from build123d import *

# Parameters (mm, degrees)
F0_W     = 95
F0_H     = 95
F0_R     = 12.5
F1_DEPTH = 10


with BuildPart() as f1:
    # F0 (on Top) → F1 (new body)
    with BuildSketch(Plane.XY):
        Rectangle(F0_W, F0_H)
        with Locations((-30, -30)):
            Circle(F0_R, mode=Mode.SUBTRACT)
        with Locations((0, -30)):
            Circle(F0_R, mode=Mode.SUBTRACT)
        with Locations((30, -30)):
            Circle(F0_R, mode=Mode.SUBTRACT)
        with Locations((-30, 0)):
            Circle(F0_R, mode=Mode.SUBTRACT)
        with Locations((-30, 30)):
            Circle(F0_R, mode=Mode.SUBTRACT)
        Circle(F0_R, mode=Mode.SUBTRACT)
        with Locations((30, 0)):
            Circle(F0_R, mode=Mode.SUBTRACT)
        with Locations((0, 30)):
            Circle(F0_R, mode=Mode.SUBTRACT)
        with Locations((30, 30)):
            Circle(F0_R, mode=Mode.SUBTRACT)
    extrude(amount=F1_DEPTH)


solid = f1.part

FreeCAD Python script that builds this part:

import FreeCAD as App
import Part
import Sketcher

V = App.Vector

doc = App.newDocument("Part")
params = doc.addObject("Spreadsheet::Sheet", "Params")
for row, (alias, value) in enumerate([
    ("sketch1_diameter", "25 mm"),
    ("sketch1_width", "95 mm"),
    ("pad1_length", "10 mm"),
], start=1):
    params.set(f"A{row}", alias)
    params.set(f"B{row}", "=" + value)
    params.setAlias(f"B{row}", alias)

body = doc.addObject("PartDesign::Body", "Body")

# Sketch on XY plane
sketch1 = body.newObject("Sketcher::SketchObject", "Sketch")
sketch1.AttachmentSupport = (doc.getObject("XY_Plane"), [""])
sketch1.MapMode = "FlatFace"
sketch1.addGeometry([
    Part.LineSegment(V(-47.5, 47.5, 0), V(-47.5, -47.5, 0)),  # 0
    Part.LineSegment(V(-47.5, -47.5, 0), V(47.5, -47.5, 0)),  # 1
    Part.LineSegment(V(47.5, -47.5, 0), V(47.5, 47.5, 0)),  # 2
    Part.LineSegment(V(47.5, 47.5, 0), V(-47.5, 47.5, 0)),  # 3
    Part.Circle(V(-30, -30, 0), V(0, 0, 1), 12.5),  # 4
    Part.Circle(V(0, -30, 0), V(0, 0, 1), 12.5),  # 5
    Part.Circle(V(30, -30, 0), V(0, 0, 1), 12.5),  # 6
    Part.Circle(V(-30, 0, 0), V(0, 0, 1), 12.5),  # 7
    Part.Circle(V(-30, 30, 0), V(0, 0, 1), 12.5),  # 8
    Part.Circle(V(0, 0, 0), V(0, 0, 1), 12.5),  # 9
    Part.Circle(V(30, 0, 0), V(0, 0, 1), 12.5),  # 10
    Part.Circle(V(0, 30, 0), V(0, 0, 1), 12.5),  # 11
    Part.Circle(V(30, 30, 0), V(0, 0, 1), 12.5),  # 12
], False)
sketch1.addConstraint([
    Sketcher.Constraint("Coincident", 0, 2, 1, 1),
    Sketcher.Constraint("Coincident", 1, 2, 2, 1),
    Sketcher.Constraint("Coincident", 2, 2, 3, 1),
    Sketcher.Constraint("Coincident", 3, 2, 0, 1),
    Sketcher.Constraint("Vertical", 0),
    Sketcher.Constraint("Horizontal", 1),
    Sketcher.Constraint("Vertical", 2),
    Sketcher.Constraint("Horizontal", 3),
    Sketcher.Constraint("Coincident", 9, 3, -1, 1),
    Sketcher.Constraint("Equal", 4, 5),
    Sketcher.Constraint("Equal", 5, 6),
    Sketcher.Constraint("Equal", 6, 7),
    Sketcher.Constraint("Equal", 7, 8),
    Sketcher.Constraint("Equal", 8, 9),
    Sketcher.Constraint("Equal", 9, 10),
    Sketcher.Constraint("Equal", 10, 11),
    Sketcher.Constraint("Equal", 11, 12),
    Sketcher.Constraint("Symmetric", 6, 3, 8, 3, -1, 1),
    Sketcher.Constraint("Symmetric", 7, 3, 10, 3, -1, 1),
    Sketcher.Constraint("Symmetric", 5, 3, 11, 3, -1, 1),
    Sketcher.Constraint("Symmetric", 4, 3, 12, 3, -1, 1),
    Sketcher.Constraint("Symmetric", 0, 2, 2, 2, -1, 1),
    Sketcher.Constraint("Symmetric", 4, 3, 6, 3, -2),
    Sketcher.Constraint("PointOnObject", 5, 3, -2),
    Sketcher.Constraint("PointOnObject", 7, 3, -1),
    Sketcher.Constraint("Horizontal", 4, 3, 5, 3),
    Sketcher.Constraint("Vertical", 4, 3, 7, 3),
    Sketcher.Constraint("Equal", 3, 0),
    Sketcher.Constraint("Diameter", 4, 25.0),
    Sketcher.Constraint("DistanceX", 1, 1, 1, 2, 95.0),
    Sketcher.Constraint("DistanceX", 4, 3, -1, 1, 30.0),
    Sketcher.Constraint("DistanceY", 4, 3, -1, 1, 30.0),
])
sketch1.setExpression("Constraints[28]", "Params.sketch1_diameter")
sketch1.setExpression("Constraints[29]", "Params.sketch1_width")
pad1 = body.newObject("PartDesign::Pad", "Pad")
pad1.Profile = sketch1
pad1.setExpression("Length", "Params.pad1_length")

doc.recompute()
